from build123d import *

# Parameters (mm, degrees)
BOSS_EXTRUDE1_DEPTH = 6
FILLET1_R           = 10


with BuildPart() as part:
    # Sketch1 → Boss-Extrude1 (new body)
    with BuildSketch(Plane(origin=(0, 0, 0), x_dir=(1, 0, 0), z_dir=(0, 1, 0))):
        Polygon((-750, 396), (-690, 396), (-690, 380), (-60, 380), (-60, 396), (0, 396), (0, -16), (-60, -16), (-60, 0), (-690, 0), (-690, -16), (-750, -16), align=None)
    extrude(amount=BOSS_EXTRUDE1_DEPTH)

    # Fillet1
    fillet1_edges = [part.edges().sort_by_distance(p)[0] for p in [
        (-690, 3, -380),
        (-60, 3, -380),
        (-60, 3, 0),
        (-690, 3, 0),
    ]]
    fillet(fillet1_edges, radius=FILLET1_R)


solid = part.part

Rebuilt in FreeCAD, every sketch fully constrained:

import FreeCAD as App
import Part
import Sketcher
from FreeCAD import Vector


def edges_at(feature, points):
    """Names of the edges that pass closest to the given points."""
    edges = feature.Shape.Edges
    near = lambda p: min(range(len(edges)), key=lambda i: edges[i].distToShape(Part.Vertex(*p))[0])
    return sorted({f"Edge{near(p) + 1}" for p in points})

doc = App.newDocument("Part")
body = doc.addObject("PartDesign::Body", "Body")

# Sketch on XZ plane
sketch1 = body.newObject("Sketcher::SketchObject", "Sketch")
sketch1.AttachmentSupport = (doc.getObject("XZ_Plane"), [""])
sketch1.MapMode = "FlatFace"
sketch1.addGeometry([
    Part.LineSegment(Vector(-690, -396, 0), Vector(-750, -396, 0)),  # 0
    Part.LineSegment(Vector(-750, -396, 0), Vector(-750, 16, 0)),  # 1
    Part.LineSegment(Vector(-750, 16, 0), Vector(-690, 16, 0)),  # 2
    Part.LineSegment(Vector(-690, 16, 0), Vector(-690, 0, 0)),  # 3
    Part.LineSegment(Vector(-690, 0, 0), Vector(-60, 0, 0)),  # 4
    Part.LineSegment(Vector(-60, 0, 0), Vector(-60, 16, 0)),  # 5
    Part.LineSegment(Vector(-60, 16, 0), Vector(0, 16, 0)),  # 6
    Part.LineSegment(Vector(0, 16, 0), Vector(0, -396, 0)),  # 7
    Part.LineSegment(Vector(0, -396, 0), Vector(-60, -396, 0)),  # 8
    Part.LineSegment(Vector(-60, -396, 0), Vector(-60, -380, 0)),  # 9
    Part.LineSegment(Vector(-60, -380, 0), Vector(-690, -380, 0)),  # 10
    Part.LineSegment(Vector(-690, -380, 0), Vector(-690, -396, 0)),  # 11
], False)
sketch1.addConstraint([
    Sketcher.Constraint("Coincident", 0, 2, 1, 1),
    Sketcher.Constraint("Coincident", 1, 2, 2, 1),
    Sketcher.Constraint("Coincident", 2, 2, 3, 1),
    Sketcher.Constraint("Coincident", 3, 2, 4, 1),
    Sketcher.Constraint("Coincident", 4, 2, 5, 1),
    Sketcher.Constraint("Coincident", 5, 2, 6, 1),
    Sketcher.Constraint("Coincident", 6, 2, 7, 1),
    Sketcher.Constraint("Coincident", 7, 2, 8, 1),
    Sketcher.Constraint("Coincident", 8, 2, 9, 1),
    Sketcher.Constraint("Coincident", 9, 2, 10, 1),
    Sketcher.Constraint("Coincident", 10, 2, 11, 1),
    Sketcher.Constraint("Coincident", 11, 2, 0, 1),
    Sketcher.Constraint("Horizontal", 0),
    Sketcher.Constraint("Vertical", 1),
    Sketcher.Constraint("Horizontal", 2),
    Sketcher.Constraint("Vertical", 3),
    Sketcher.Constraint("Horizontal", 4),
    Sketcher.Constraint("Vertical", 5),
    Sketcher.Constraint("Horizontal", 6),
    Sketcher.Constraint("Vertical", 7),
    Sketcher.Constraint("Horizontal", 8),
    Sketcher.Constraint("Vertical", 9),
    Sketcher.Constraint("Horizontal", 10),
    Sketcher.Constraint("Vertical", 11),
    Sketcher.Constraint("PointOnObject", 3, 2, -1),
    Sketcher.Constraint("PointOnObject", 6, 2, -2),
    Sketcher.Constraint("Horizontal", 2, 2, 5, 2),
    Sketcher.Constraint("Horizontal", 0, 2, 7, 2),
    Sketcher.Constraint("Vertical", 5, 2, 8, 2),
    Sketcher.Constraint("Vertical", 3, 2, 10, 2),
    Sketcher.Constraint("Equal", 2, 6),
    Sketcher.Constraint("Equal", 5, 9),
    Sketcher.Constraint("DistanceX", 0, 2, 0, 1, 60.0),
    Sketcher.Constraint("DistanceX", 4, 1, 4, 2, 630.0),
    Sketcher.Constraint("DistanceY", 1, 1, 1, 2, 412.0),
    Sketcher.Constraint("DistanceY", 3, 2, 3, 1, 16.0),
])
pad1 = body.newObject("PartDesign::Pad", "Pad")
pad1.Profile = sketch1
pad1.Length = 6
pad1.Reversed = True
doc.recompute()

fillet = body.newObject("PartDesign::Fillet", "Fillet")
fillet.Base = (pad1, edges_at(pad1, [
    (-690, 3, -380),
    (-60, 3, -380),
    (-60, 3, 0),
    (-690, 3, 0),
]))
fillet.Radius = 10

doc.recompute()
